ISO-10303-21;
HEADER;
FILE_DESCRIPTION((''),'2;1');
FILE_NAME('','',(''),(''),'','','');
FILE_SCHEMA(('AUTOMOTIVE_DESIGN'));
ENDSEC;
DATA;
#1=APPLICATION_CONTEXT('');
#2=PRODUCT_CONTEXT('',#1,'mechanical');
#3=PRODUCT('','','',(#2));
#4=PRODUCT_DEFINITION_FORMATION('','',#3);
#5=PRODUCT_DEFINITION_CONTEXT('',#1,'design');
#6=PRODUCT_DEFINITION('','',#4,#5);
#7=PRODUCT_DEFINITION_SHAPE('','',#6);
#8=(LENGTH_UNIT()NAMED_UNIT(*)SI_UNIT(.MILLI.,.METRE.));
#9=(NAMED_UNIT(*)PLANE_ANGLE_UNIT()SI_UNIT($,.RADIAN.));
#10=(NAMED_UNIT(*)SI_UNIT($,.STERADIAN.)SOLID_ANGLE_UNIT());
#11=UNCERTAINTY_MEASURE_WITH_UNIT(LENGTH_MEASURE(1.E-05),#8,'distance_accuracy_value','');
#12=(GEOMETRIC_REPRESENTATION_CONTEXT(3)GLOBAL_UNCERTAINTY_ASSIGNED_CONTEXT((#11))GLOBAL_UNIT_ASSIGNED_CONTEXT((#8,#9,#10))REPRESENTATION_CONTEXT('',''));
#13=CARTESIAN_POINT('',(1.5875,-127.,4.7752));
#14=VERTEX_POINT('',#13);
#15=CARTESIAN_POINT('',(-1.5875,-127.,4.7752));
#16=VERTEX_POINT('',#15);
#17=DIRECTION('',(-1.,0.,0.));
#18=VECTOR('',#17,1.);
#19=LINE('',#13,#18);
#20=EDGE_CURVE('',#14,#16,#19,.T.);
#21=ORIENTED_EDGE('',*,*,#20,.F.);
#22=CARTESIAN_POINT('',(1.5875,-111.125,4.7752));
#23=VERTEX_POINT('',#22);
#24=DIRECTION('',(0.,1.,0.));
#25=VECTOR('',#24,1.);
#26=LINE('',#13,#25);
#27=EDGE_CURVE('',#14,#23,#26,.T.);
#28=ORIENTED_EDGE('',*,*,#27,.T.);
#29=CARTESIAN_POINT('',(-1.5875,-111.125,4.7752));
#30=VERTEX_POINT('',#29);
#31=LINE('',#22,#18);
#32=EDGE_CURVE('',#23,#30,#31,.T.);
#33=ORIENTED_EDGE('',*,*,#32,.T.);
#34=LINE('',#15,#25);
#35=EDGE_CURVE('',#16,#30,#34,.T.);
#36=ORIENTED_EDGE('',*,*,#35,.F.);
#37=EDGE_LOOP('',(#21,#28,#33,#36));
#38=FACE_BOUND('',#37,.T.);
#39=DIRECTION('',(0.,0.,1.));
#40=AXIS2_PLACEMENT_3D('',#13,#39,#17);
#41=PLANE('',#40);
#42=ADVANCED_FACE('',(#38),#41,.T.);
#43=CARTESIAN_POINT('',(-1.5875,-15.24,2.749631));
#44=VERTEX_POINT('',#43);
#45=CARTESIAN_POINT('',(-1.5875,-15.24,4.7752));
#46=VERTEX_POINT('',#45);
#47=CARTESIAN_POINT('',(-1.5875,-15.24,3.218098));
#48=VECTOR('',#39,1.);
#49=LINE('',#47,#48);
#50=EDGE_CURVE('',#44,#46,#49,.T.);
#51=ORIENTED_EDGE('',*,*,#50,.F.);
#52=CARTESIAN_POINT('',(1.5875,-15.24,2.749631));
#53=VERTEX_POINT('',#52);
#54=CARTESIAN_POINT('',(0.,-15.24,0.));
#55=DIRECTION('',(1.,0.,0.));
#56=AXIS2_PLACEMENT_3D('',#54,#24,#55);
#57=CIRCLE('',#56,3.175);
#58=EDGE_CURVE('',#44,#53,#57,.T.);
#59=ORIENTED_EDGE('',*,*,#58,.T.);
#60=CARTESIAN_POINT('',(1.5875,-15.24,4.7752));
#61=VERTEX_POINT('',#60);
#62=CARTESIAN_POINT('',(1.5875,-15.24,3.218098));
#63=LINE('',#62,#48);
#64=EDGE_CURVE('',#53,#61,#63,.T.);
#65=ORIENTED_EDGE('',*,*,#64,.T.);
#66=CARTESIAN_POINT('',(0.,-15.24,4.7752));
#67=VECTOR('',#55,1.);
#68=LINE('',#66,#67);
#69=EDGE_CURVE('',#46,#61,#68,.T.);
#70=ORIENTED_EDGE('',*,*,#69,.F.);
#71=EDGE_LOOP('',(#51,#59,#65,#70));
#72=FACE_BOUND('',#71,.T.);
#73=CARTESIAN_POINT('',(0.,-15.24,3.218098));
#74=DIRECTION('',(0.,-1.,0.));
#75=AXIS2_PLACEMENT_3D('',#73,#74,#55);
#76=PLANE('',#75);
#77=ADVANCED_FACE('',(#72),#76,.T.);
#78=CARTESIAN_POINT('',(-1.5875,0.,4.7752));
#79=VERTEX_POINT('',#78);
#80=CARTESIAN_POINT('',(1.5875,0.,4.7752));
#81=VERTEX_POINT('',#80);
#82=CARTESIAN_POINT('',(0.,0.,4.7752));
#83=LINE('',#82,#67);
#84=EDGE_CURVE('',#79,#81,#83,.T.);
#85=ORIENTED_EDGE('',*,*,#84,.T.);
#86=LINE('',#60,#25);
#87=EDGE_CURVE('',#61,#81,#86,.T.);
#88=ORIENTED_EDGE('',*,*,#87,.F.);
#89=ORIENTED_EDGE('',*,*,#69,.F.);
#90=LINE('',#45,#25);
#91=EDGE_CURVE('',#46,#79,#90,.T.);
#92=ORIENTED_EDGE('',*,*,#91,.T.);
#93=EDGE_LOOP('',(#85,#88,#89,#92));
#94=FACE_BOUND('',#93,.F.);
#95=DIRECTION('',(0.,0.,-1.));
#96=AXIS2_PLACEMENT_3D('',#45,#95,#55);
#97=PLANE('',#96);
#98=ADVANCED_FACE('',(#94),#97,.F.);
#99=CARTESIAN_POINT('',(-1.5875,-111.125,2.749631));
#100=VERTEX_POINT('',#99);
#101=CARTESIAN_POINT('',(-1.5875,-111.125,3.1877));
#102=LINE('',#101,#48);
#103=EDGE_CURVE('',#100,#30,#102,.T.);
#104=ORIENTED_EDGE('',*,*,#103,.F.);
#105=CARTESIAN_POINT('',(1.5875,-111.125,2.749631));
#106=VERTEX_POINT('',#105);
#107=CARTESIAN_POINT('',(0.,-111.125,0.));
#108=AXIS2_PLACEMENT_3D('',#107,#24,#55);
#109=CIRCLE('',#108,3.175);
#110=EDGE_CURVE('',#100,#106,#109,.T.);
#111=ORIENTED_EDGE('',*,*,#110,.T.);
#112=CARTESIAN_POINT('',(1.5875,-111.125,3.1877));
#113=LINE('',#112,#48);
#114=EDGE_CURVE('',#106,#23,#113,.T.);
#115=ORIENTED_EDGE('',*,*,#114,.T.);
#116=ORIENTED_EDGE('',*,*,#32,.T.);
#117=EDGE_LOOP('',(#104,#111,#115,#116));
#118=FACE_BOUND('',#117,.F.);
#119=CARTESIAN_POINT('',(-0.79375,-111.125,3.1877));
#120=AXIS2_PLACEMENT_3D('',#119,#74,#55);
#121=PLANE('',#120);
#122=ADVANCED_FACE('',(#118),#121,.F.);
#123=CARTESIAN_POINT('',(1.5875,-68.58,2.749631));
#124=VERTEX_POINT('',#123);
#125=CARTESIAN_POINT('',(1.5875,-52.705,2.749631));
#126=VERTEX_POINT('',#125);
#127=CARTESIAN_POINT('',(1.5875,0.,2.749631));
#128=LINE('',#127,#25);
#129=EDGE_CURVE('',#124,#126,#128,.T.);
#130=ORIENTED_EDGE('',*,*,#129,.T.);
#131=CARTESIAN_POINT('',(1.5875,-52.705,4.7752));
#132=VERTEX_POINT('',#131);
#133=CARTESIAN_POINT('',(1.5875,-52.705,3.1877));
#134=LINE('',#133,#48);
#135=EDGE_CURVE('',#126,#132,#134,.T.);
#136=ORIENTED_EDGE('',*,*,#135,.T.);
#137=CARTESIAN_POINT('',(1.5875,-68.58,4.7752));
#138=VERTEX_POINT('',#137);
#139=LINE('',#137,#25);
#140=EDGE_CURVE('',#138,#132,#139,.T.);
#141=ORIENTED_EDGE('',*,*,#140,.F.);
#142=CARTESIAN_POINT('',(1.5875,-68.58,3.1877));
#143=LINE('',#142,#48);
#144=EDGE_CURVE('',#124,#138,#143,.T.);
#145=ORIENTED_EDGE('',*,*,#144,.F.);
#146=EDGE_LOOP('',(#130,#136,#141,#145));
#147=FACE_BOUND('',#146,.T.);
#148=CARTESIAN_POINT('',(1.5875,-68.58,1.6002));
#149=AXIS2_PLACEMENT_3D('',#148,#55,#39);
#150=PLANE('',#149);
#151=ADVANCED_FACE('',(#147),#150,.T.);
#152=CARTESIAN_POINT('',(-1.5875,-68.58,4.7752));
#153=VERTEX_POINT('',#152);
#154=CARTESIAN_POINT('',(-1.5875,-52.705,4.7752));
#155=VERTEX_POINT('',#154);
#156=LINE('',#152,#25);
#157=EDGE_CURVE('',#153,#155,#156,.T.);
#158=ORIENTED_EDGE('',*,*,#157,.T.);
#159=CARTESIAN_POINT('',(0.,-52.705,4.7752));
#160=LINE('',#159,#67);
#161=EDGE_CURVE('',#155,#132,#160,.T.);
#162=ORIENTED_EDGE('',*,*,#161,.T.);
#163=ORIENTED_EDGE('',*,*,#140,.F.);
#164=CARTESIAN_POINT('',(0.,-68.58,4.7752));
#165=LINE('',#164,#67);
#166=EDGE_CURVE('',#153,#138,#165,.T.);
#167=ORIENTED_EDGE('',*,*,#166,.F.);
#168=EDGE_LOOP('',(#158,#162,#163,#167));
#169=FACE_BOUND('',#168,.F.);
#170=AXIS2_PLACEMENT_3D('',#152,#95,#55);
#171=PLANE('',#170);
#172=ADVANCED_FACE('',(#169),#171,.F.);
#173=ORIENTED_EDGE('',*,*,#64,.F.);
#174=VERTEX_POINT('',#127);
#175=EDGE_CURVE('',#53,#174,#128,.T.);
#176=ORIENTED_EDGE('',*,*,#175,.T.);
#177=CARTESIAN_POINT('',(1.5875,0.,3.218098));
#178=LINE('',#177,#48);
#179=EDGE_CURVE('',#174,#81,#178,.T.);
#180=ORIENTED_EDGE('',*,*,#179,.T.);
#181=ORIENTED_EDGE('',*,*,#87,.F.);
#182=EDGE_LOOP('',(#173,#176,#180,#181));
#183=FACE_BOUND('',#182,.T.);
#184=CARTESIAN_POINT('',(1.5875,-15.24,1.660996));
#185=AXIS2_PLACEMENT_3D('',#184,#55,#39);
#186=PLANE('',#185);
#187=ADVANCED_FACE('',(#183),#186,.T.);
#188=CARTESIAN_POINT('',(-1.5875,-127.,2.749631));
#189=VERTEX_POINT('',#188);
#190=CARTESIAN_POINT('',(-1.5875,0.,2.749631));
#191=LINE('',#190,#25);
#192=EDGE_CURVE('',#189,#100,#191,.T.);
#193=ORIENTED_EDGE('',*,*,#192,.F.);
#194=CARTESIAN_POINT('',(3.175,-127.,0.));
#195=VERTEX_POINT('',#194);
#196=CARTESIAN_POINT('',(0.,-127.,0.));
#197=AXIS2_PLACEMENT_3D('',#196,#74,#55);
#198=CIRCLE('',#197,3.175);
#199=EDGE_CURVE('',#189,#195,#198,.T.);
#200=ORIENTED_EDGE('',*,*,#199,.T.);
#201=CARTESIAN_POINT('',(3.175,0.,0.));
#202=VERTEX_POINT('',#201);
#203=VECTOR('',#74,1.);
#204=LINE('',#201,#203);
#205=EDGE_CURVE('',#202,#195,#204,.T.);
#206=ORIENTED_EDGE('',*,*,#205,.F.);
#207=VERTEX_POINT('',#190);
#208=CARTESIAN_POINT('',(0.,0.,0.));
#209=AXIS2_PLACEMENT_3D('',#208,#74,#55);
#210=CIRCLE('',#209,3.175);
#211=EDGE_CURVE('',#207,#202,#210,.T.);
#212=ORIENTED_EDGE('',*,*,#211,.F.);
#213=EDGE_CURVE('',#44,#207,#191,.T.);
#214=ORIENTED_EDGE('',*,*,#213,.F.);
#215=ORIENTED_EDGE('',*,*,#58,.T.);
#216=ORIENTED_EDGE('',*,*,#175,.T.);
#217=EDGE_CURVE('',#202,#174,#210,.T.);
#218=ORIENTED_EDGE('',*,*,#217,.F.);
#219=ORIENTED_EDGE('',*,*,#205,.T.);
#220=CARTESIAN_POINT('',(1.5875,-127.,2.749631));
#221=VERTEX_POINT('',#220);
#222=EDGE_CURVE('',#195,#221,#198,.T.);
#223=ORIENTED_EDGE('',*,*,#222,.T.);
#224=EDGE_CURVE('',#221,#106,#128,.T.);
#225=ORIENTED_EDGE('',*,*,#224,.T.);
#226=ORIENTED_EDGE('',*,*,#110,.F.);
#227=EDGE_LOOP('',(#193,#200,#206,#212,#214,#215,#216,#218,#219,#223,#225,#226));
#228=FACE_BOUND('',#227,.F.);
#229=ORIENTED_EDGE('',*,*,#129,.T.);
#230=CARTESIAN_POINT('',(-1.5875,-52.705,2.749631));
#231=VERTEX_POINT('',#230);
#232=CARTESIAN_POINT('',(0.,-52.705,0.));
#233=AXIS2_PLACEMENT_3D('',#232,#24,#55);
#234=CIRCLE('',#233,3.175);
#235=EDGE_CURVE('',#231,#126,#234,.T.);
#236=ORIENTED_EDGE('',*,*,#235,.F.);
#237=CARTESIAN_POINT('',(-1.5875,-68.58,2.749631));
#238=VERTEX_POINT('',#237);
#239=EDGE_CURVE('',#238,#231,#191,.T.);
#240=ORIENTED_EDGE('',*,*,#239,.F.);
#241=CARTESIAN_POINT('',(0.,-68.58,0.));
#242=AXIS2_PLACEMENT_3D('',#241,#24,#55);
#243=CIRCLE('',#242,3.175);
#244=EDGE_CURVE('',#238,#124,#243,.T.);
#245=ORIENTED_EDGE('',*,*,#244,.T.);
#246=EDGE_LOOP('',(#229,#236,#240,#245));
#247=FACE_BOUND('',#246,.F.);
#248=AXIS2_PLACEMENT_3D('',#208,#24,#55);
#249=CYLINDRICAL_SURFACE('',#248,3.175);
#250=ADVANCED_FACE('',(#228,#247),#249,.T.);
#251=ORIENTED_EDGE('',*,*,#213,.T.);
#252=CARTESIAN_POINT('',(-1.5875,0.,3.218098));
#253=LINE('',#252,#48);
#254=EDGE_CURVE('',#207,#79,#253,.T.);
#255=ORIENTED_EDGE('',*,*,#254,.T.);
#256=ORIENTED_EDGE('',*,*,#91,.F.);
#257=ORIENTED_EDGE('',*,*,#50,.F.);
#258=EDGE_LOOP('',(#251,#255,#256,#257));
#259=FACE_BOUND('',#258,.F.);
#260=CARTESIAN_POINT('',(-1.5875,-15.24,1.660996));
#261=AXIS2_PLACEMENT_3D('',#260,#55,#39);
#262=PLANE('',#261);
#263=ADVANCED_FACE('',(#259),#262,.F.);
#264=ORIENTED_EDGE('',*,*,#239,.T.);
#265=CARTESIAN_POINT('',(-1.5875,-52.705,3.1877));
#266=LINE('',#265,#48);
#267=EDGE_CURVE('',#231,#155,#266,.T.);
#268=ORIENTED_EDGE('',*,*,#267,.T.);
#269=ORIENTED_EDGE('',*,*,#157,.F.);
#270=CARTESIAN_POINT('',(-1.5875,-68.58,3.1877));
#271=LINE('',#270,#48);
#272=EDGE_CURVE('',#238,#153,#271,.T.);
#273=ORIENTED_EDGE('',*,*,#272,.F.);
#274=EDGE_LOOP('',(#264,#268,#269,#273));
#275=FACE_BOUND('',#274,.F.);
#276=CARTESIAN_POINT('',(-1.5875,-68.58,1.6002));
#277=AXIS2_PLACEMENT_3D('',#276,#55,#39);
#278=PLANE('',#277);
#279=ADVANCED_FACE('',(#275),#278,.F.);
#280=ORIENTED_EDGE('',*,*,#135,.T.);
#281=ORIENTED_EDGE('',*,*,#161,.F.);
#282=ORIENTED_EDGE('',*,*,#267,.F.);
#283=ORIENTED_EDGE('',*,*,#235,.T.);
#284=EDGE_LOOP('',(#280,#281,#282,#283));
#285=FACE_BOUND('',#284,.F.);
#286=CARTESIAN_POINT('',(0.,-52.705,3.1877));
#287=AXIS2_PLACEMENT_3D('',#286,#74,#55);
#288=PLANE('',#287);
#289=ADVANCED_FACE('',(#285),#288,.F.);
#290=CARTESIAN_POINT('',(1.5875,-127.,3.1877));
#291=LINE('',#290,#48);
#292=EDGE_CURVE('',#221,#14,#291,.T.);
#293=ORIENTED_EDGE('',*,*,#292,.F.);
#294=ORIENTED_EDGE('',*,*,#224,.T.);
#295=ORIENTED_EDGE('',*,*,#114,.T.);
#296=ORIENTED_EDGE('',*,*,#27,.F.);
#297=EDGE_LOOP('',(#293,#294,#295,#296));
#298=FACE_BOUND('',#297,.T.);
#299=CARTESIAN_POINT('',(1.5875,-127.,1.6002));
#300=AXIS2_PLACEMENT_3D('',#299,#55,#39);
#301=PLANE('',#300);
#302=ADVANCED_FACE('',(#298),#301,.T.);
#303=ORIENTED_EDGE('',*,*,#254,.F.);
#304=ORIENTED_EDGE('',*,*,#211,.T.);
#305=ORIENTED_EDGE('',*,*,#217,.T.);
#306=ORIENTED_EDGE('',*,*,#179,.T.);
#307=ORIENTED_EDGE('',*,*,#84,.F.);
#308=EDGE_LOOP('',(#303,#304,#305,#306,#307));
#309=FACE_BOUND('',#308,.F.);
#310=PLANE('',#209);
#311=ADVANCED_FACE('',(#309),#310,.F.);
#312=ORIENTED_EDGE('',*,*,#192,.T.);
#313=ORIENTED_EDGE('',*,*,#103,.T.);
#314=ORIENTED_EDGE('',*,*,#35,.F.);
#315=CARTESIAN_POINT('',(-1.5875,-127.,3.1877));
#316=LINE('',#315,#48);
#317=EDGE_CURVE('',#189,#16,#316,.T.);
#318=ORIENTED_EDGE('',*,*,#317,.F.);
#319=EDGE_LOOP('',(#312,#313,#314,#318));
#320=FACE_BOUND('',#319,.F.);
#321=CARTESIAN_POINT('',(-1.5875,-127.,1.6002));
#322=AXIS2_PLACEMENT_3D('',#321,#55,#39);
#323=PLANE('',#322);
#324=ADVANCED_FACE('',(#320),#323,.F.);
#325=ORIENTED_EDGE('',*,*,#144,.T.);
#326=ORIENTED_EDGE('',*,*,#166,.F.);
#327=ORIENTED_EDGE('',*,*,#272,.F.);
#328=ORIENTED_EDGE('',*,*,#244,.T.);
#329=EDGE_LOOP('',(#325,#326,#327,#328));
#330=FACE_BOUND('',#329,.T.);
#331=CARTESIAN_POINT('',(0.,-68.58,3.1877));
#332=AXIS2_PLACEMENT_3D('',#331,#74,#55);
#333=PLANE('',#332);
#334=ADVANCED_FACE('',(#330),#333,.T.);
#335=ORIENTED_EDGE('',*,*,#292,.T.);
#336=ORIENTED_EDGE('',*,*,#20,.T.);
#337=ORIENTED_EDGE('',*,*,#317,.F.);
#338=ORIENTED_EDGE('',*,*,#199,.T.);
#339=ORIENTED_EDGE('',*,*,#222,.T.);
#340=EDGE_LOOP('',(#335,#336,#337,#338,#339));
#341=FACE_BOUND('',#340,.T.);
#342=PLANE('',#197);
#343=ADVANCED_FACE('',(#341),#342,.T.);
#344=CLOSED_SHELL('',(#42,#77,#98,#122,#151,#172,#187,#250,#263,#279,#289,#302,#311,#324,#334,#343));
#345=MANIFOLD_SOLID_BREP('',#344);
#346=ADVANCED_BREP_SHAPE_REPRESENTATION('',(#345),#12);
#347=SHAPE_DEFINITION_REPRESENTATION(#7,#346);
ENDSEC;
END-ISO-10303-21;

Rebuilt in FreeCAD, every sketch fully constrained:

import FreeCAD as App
import Part
import Sketcher

V = App.Vector
Q = App.Units.Quantity


def add_polygon(sketch, points):
    """Adds a closed chain of lines whose ends are joined by coincident constraints."""
    first, n = sketch.GeometryCount, len(points)
    for a, b in zip(points, points[1:] + points[:1]):
        sketch.addGeometry(Part.LineSegment(App.Vector(*a, 0), App.Vector(*b, 0)), False)
    for i in range(n):
        sketch.addConstraint(Sketcher.Constraint("Coincident", first + i, 2, first + (i + 1) % n, 1))

doc = App.newDocument("Part")
body = doc.addObject("PartDesign::Body", "Body")

# Sketch on XZ plane
sketch1 = doc.addObject("Sketcher::SketchObject", "Sketch")
body.addObject(sketch1)
sketch1.AttachmentSupport = (doc.XZ_Plane, [""])
sketch1.MapMode = "FlatFace"
sketch1.addGeometry(Part.Circle(V(0, 0, 0), V(0, 0, 1), 3.2), False)
sketch1.addConstraint([
    Sketcher.Constraint("Coincident", 0, 3, -1, 1),
    Sketcher.Constraint("Diameter", 0, Q("0.25 in")),
])
pad1 = doc.addObject("PartDesign::Pad", "Pad")
body.addObject(pad1)
pad1.Profile = sketch1
pad1.Length = Q("5 in")

# Sketch on XZ plane
sketch2 = doc.addObject("Sketcher::SketchObject", "Sketch001")
body.addObject(sketch2)
sketch2.AttachmentSupport = (doc.XZ_Plane, [""])
sketch2.MapMode = "FlatFace"
sketch2.AttachmentOffset = App.Placement(V(0, 0, 5 * 25.4), App.Rotation())
add_polygon(sketch2, [(-1.6, 4.8), (-1.6, 1.6), (1.6, 1.6), (1.6, 4.8)])  # lines 0-3
sketch2.addConstraint([
    Sketcher.Constraint("Vertical", 0),
    Sketcher.Constraint("Horizontal", 1),
    Sketcher.Constraint("Vertical", 2),
    Sketcher.Constraint("Horizontal", 3),
    Sketcher.Constraint("Equal", 3, 0),
    Sketcher.Constraint("DistanceX", 1, 1, 1, 2, Q("0.125 in")),
    Sketcher.Constraint("DistanceX", 0, 2, -1, 1, Q("0.0625 in")),
    Sketcher.Constraint("DistanceY", -1, 1, 0, 2, Q("0.063 in")),
])
pad2 = doc.addObject("PartDesign::Pad", "Pad001")
body.addObject(pad2)
pad2.Profile = sketch2
pad2.Length = Q("0.625 in")
pad2.Reversed = True

# Sketch on XZ plane
sketch3 = doc.addObject("Sketcher::SketchObject", "Sketch002")
body.addObject(sketch3)
sketch3.AttachmentSupport = (doc.XZ_Plane, [""])
sketch3.MapMode = "FlatFace"
sketch3.AttachmentOffset = App.Placement(V(0, 0, 2.7 * 25.4), App.Rotation())
add_polygon(sketch3, [(-1.6, 4.8), (-1.6, 1.6), (1.6, 1.6), (1.6, 4.8)])  # lines 0-3
sketch3.addConstraint([
    Sketcher.Constraint("Vertical", 0),
    Sketcher.Constraint("Horizontal", 1),
    Sketcher.Constraint("Vertical", 2),
    Sketcher.Constraint("Horizontal", 3),
    Sketcher.Constraint("Equal", 3, 0),
    Sketcher.Constraint("DistanceX", 1, 1, 1, 2, Q("0.125 in")),
    Sketcher.Constraint("DistanceX", 0, 2, -1, 1, Q("0.0625 in")),
    Sketcher.Constraint("DistanceY", -1, 1, 0, 2, Q("0.063 in")),
])
pad3 = doc.addObject("PartDesign::Pad", "Pad002")
body.addObject(pad3)
pad3.Profile = sketch3
pad3.Length = Q("0.625 in")
pad3.Reversed = True

# Sketch on XZ plane
sketch4 = doc.addObject("Sketcher::SketchObject", "Sketch003")
body.addObject(sketch4)
sketch4.AttachmentSupport = (doc.XZ_Plane, [""])
sketch4.MapMode = "FlatFace"
sketch4.AttachmentOffset = App.Placement(V(0, 0, 0.6 * 25.4), App.Rotation())
add_polygon(sketch4, [(-1.6, 4.8), (-1.6, 1.7), (1.6, 1.7), (1.6, 4.8)])  # lines 0-3
sketch4.addConstraint([
    Sketcher.Constraint("Vertical", 0),
    Sketcher.Constraint("Horizontal", 1),
    Sketcher.Constraint("Vertical", 2),
    Sketcher.Constraint("Horizontal", 3),
    Sketcher.Constraint("DistanceX", 1, 1, 1, 2, Q("0.125 in")),
    Sketcher.Constraint("DistanceX", 0, 2, -1, 1, Q("0.0625 in")),
    Sketcher.Constraint("DistanceY", -1, 1, 2, 2, Q("0.188 in")),
    Sketcher.Constraint("DistanceY", 0, 2, 0, 1, Q("3.114204 mm")),
])
pad4 = doc.addObject("PartDesign::Pad", "Pad003")
body.addObject(pad4)
pad4.Profile = sketch4
pad4.Length = Q("0.6 in")
pad4.Reversed = True

doc.recompute()
